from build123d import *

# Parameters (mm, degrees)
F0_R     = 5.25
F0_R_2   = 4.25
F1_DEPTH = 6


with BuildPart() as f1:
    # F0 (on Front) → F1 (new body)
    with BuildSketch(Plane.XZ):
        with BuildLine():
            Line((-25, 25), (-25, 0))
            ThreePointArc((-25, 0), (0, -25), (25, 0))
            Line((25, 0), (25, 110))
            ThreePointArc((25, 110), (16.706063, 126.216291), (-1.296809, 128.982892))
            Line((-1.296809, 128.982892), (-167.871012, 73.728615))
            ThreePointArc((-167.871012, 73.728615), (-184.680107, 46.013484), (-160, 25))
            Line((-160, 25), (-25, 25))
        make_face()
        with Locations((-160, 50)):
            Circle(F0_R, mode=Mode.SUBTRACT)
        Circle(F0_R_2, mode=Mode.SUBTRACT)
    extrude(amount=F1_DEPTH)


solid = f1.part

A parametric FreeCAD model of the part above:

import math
import FreeCAD as App
import Part
import Sketcher

doc = App.newDocument("Part")
body = doc.addObject("PartDesign::Body", "Body")

sketch1 = body.newObject("Sketcher::SketchObject", "Sketch")
sketch1.AttachmentSupport = (doc.getObject("XZ_Plane"), [""])
sketch1.MapMode = "FlatFace"
sketch1.addGeometry(Part.LineSegment(App.Vector(-25, 25, 0), App.Vector(-25, 0, 0)), False)
sketch1.addGeometry(Part.ArcOfCircle(Part.Circle(App.Vector(0, 0, 0), App.Vector(0, 0, 1), 25), math.radians(180), math.radians(360)), False)
sketch1.addGeometry(Part.LineSegment(App.Vector(25, 0, 0), App.Vector(25, 110, 0)), False)
sketch1.addGeometry(Part.ArcOfCircle(Part.Circle(App.Vector(5, 110, 0), App.Vector(0, 0, 1), 20), math.radians(0), math.radians(108)), False)
sketch1.addGeometry(Part.LineSegment(App.Vector(-1.3, 129, 0), App.Vector(-167.9, 73.7, 0)), False)
sketch1.addGeometry(Part.ArcOfCircle(Part.Circle(App.Vector(-160, 50, 0), App.Vector(0, 0, 1), 25), math.radians(108), math.radians(270)), False)
sketch1.addGeometry(Part.LineSegment(App.Vector(-160, 25, 0), App.Vector(-25, 25, 0)), False)
sketch1.addGeometry(Part.Circle(App.Vector(0, 0, 0), App.Vector(0, 0, 1), 4.2), False)
sketch1.addGeometry(Part.Circle(App.Vector(-160, 50, 0), App.Vector(0, 0, 1), 5.2), False)
sketch1.addConstraint(Sketcher.Constraint("Tangent", 0, 2, 1, 1))
sketch1.addConstraint(Sketcher.Constraint("Tangent", 1, 2, 2, 1))
sketch1.addConstraint(Sketcher.Constraint("Tangent", 2, 2, 3, 1))
sketch1.addConstraint(Sketcher.Constraint("Tangent", 3, 2, 4, 1))
sketch1.addConstraint(Sketcher.Constraint("Tangent", 4, 2, 5, 1))
sketch1.addConstraint(Sketcher.Constraint("Tangent", 5, 2, 6, 1))
sketch1.addConstraint(Sketcher.Constraint("Coincident", 6, 2, 0, 1))
sketch1.addConstraint(Sketcher.Constraint("Vertical", 0))
sketch1.addConstraint(Sketcher.Constraint("Vertical", 2))
sketch1.addConstraint(Sketcher.Constraint("Horizontal", 6))
sketch1.addConstraint(Sketcher.Constraint("Coincident", 1, 3, -1, 1))
sketch1.addConstraint(Sketcher.Constraint("Coincident", 7, 3, -1, 1))
sketch1.addConstraint(Sketcher.Constraint("Coincident", 8, 3, 5, 3))
sketch1.addConstraint(Sketcher.Constraint("Equal", 1, 5))
sketch1.addConstraint(Sketcher.Constraint("Radius", 1, 25.0))
sketch1.addConstraint(Sketcher.Constraint("Radius", 3, 20.0))
sketch1.addConstraint(Sketcher.Constraint("Diameter", 7, 8.5))
sketch1.addConstraint(Sketcher.Constraint("Diameter", 8, 10.5))
sketch1.addConstraint(Sketcher.Constraint("DistanceX", 6, 1, 6, 2, 135.0))
sketch1.addConstraint(Sketcher.Constraint("DistanceY", 0, 2, 0, 1, 25.0))
sketch1.addConstraint(Sketcher.Constraint("DistanceY", 2, 1, 2, 2, 110.0))
pad1 = body.newObject("PartDesign::Pad", "Pad")
pad1.Profile = sketch1
pad1.Length = 6

doc.recompute()
